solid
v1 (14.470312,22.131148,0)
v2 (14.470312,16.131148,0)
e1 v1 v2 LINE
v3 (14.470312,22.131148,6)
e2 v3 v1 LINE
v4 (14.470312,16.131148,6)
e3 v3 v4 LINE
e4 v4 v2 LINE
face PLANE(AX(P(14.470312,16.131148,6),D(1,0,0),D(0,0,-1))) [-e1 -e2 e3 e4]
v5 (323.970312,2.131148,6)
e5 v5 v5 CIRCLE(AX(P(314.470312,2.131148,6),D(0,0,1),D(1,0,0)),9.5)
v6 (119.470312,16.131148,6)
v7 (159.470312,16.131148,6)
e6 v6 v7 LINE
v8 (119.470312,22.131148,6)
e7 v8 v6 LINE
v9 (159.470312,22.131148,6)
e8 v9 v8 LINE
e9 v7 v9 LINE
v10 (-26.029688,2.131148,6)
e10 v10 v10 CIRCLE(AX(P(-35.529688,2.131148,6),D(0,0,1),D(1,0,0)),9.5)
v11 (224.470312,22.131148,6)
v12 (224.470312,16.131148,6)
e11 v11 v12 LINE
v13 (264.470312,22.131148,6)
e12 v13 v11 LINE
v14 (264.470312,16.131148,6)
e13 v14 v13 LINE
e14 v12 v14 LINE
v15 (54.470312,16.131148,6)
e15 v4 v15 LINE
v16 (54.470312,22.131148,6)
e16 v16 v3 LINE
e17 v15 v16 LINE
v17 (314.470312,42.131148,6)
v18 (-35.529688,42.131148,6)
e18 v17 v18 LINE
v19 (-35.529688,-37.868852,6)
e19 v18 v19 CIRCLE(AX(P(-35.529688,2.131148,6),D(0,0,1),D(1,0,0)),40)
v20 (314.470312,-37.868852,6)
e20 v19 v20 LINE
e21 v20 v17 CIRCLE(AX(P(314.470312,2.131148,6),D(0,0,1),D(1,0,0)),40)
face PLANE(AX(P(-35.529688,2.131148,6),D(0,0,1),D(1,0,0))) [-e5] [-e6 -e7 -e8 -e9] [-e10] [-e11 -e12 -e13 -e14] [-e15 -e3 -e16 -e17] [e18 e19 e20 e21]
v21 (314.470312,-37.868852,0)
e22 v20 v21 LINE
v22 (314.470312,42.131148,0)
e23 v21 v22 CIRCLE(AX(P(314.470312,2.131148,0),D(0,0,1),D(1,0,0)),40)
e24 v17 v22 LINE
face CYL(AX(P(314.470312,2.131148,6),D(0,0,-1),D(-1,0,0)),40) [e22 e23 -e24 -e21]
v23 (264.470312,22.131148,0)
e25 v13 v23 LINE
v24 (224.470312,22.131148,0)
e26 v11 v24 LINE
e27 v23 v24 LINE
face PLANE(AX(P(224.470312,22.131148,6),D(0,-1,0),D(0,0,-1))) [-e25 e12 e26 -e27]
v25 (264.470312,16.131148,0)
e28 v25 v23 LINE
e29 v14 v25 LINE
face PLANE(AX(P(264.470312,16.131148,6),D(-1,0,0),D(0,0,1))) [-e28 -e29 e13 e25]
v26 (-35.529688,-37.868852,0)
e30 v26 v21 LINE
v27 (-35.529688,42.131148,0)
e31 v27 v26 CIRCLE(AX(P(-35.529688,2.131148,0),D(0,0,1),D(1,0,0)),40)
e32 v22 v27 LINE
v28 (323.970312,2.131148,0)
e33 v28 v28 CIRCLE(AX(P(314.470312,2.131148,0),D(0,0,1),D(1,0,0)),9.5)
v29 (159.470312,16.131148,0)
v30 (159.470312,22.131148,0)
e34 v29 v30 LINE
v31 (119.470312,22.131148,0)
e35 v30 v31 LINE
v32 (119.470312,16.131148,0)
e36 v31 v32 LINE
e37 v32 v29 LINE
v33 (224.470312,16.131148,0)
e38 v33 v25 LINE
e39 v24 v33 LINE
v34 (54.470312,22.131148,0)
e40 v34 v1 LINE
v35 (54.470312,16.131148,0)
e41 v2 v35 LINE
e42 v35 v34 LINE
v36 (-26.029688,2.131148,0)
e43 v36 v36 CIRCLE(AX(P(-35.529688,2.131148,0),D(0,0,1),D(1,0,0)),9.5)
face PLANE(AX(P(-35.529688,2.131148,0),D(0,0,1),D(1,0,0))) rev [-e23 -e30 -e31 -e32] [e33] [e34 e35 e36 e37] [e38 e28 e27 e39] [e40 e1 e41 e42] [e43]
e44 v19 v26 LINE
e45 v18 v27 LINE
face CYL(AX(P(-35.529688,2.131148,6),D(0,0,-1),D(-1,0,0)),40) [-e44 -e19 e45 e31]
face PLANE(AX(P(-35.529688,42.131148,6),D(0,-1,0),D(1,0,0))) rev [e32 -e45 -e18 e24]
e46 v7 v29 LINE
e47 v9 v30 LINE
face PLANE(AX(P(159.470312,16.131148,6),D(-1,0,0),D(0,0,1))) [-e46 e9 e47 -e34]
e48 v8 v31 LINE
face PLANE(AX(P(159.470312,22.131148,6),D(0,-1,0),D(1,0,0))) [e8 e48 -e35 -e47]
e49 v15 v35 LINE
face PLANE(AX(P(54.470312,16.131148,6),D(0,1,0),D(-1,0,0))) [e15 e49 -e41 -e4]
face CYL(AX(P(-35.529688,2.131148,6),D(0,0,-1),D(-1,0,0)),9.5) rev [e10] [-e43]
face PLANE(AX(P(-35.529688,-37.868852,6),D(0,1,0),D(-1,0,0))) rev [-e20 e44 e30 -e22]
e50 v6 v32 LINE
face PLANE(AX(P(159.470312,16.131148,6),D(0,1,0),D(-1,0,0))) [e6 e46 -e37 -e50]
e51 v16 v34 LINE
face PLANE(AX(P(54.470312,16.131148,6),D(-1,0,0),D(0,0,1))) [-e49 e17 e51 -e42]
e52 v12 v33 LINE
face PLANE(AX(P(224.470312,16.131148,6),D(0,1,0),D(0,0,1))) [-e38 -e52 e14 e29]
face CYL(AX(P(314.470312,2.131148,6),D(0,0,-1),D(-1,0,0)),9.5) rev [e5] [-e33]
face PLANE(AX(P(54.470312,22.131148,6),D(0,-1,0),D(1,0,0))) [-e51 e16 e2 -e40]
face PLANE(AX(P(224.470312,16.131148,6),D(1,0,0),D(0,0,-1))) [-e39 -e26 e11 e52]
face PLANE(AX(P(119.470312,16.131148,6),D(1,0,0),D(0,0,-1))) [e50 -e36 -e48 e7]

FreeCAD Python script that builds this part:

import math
import FreeCAD as App
import Part
import Sketcher
from FreeCAD import Vector
Q = App.Units.Quantity

doc = App.newDocument("Part")
params = doc.addObject("Spreadsheet::Sheet", "Params")
for row, (alias, value) in enumerate([
    ("sketch1_diameter", "19 mm"),
    ("sketch1_radius", "40 mm"),
    ("sketch1_width", "350 mm"),
    ("sketch1_width2", "40 mm"),
    ("sketch1_height", "6 mm"),
    ("pad1_length", "6 mm"),
], start=1):
    params.set(f"A{row}", alias)
    params.set(f"B{row}", "=" + value)
    params.setAlias(f"B{row}", alias)

body = doc.addObject("PartDesign::Body", "Body")

# Sketch on XY plane
sketch1 = body.newObject("Sketcher::SketchObject", "Sketch")
sketch1.AttachmentSupport = (doc.getObject("XY_Plane"), [""])
sketch1.MapMode = "FlatFace"
sketch1.addGeometry([
    Part.LineSegment(Vector(314, 42, 0), Vector(-36, 42, 0)),  # 0
    Part.ArcOfCircle(Part.Circle(Vector(-36, 2, 0), Vector(0, 0, 1), 40), math.radians(90), math.radians(270)),  # 1
    Part.LineSegment(Vector(-36, -38, 0), Vector(314, -38, 0)),  # 2
    Part.ArcOfCircle(Part.Circle(Vector(314, 2, 0), Vector(0, 0, 1), 40), math.radians(-90), math.radians(90)),  # 3
    Part.Circle(Vector(314, 2, 0), Vector(0, 0, 1), 10),  # 4
    Part.Circle(Vector(-36, 2, 0), Vector(0, 0, 1), 10),  # 5
    Part.LineSegment(Vector(224, 16, 0), Vector(224, 22, 0)),  # 6
    Part.LineSegment(Vector(224, 22, 0), Vector(264, 22, 0)),  # 7
    Part.LineSegment(Vector(264, 22, 0), Vector(264, 16, 0)),  # 8
    Part.LineSegment(Vector(264, 16, 0), Vector(224, 16, 0)),  # 9
    Part.LineSegment(Vector(119, 16, 0), Vector(119, 22, 0)),  # 10
    Part.LineSegment(Vector(119, 22, 0), Vector(159, 22, 0)),  # 11
    Part.LineSegment(Vector(159, 22, 0), Vector(159, 16, 0)),  # 12
    Part.LineSegment(Vector(159, 16, 0), Vector(119, 16, 0)),  # 13
    Part.LineSegment(Vector(14, 16, 0), Vector(14, 22, 0)),  # 14
    Part.LineSegment(Vector(14, 22, 0), Vector(54, 22, 0)),  # 15
    Part.LineSegment(Vector(54, 22, 0), Vector(54, 16, 0)),  # 16
    Part.LineSegment(Vector(54, 16, 0), Vector(14, 16, 0)),  # 17
], False)
sketch1.addConstraint([
    Sketcher.Constraint("Tangent", 0, 2, 1, 1),
    Sketcher.Constraint("Tangent", 1, 2, 2, 1),
    Sketcher.Constraint("Tangent", 2, 2, 3, 1),
    Sketcher.Constraint("Tangent", 3, 2, 0, 1),
    Sketcher.Constraint("Coincident", 6, 2, 7, 1),
    Sketcher.Constraint("Coincident", 7, 2, 8, 1),
    Sketcher.Constraint("Coincident", 8, 2, 9, 1),
    Sketcher.Constraint("Coincident", 9, 2, 6, 1),
    Sketcher.Constraint("Coincident", 10, 2, 11, 1),
    Sketcher.Constraint("Coincident", 11, 2, 12, 1),
    Sketcher.Constraint("Coincident", 12, 2, 13, 1),
    Sketcher.Constraint("Coincident", 13, 2, 10, 1),
    Sketcher.Constraint("Coincident", 14, 2, 15, 1),
    Sketcher.Constraint("Coincident", 15, 2, 16, 1),
    Sketcher.Constraint("Coincident", 16, 2, 17, 1),
    Sketcher.Constraint("Coincident", 17, 2, 14, 1),
    Sketcher.Constraint("Horizontal", 0),
    Sketcher.Constraint("Horizontal", 2),
    Sketcher.Constraint("Vertical", 6),
    Sketcher.Constraint("Horizontal", 7),
    Sketcher.Constraint("Vertical", 8),
    Sketcher.Constraint("Horizontal", 9),
    Sketcher.Constraint("Vertical", 10),
    Sketcher.Constraint("Horizontal", 11),
    Sketcher.Constraint("Vertical", 12),
    Sketcher.Constraint("Horizontal", 13),
    Sketcher.Constraint("Vertical", 14),
    Sketcher.Constraint("Horizontal", 15),
    Sketcher.Constraint("Vertical", 16),
    Sketcher.Constraint("Horizontal", 17),
    Sketcher.Constraint("Coincident", 4, 3, 3, 3),
    Sketcher.Constraint("Coincident", 5, 3, 1, 3),
    Sketcher.Constraint("Equal", 4, 5),
    Sketcher.Constraint("Horizontal", 7, 2, 10, 2),
    Sketcher.Constraint("Horizontal", 9, 2, 12, 2),
    Sketcher.Constraint("Horizontal", 11, 2, 14, 2),
    Sketcher.Constraint("Horizontal", 13, 2, 16, 2),
    Sketcher.Constraint("Equal", 9, 11),
    Sketcher.Constraint("Equal", 13, 15),
    Sketcher.Constraint("Diameter", 4, Q("19 mm")),
    Sketcher.Constraint("Radius", 1, Q("40 mm")),
    Sketcher.Constraint("DistanceX", 0, 2, 0, 1, Q("350 mm")),
    Sketcher.Constraint("DistanceX", 7, 1, 7, 2, Q("40 mm")),
    Sketcher.Constraint("DistanceY", 6, 1, 6, 2, Q("6 mm")),
    Sketcher.Constraint("DistanceX", 6, 2, 3, 3, Q("90 mm")),
    Sketcher.Constraint("DistanceY", 3, 3, 6, 2, Q("20 mm")),
    Sketcher.Constraint("DistanceX", 10, 2, 6, 2, Q("105 mm")),
    Sketcher.Constraint("DistanceX", 1, 3, 14, 2, Q("50 mm")),
    Sketcher.Constraint("DistanceX", 1, 3, -1, 1, Q("35.529688 mm")),
    Sketcher.Constraint("DistanceY", -1, 1, 1, 3, Q("2.131148 mm")),
])
sketch1.setExpression("Constraints[39]", "Params.sketch1_diameter")
sketch1.setExpression("Constraints[40]", "Params.sketch1_radius")
sketch1.setExpression("Constraints[41]", "Params.sketch1_width")
sketch1.setExpression("Constraints[42]", "Params.sketch1_width2")
sketch1.setExpression("Constraints[43]", "Params.sketch1_height")
pad1 = body.newObject("PartDesign::Pad", "Pad")
pad1.Profile = sketch1
pad1.setExpression("Length", "Params.pad1_length")

doc.recompute()
